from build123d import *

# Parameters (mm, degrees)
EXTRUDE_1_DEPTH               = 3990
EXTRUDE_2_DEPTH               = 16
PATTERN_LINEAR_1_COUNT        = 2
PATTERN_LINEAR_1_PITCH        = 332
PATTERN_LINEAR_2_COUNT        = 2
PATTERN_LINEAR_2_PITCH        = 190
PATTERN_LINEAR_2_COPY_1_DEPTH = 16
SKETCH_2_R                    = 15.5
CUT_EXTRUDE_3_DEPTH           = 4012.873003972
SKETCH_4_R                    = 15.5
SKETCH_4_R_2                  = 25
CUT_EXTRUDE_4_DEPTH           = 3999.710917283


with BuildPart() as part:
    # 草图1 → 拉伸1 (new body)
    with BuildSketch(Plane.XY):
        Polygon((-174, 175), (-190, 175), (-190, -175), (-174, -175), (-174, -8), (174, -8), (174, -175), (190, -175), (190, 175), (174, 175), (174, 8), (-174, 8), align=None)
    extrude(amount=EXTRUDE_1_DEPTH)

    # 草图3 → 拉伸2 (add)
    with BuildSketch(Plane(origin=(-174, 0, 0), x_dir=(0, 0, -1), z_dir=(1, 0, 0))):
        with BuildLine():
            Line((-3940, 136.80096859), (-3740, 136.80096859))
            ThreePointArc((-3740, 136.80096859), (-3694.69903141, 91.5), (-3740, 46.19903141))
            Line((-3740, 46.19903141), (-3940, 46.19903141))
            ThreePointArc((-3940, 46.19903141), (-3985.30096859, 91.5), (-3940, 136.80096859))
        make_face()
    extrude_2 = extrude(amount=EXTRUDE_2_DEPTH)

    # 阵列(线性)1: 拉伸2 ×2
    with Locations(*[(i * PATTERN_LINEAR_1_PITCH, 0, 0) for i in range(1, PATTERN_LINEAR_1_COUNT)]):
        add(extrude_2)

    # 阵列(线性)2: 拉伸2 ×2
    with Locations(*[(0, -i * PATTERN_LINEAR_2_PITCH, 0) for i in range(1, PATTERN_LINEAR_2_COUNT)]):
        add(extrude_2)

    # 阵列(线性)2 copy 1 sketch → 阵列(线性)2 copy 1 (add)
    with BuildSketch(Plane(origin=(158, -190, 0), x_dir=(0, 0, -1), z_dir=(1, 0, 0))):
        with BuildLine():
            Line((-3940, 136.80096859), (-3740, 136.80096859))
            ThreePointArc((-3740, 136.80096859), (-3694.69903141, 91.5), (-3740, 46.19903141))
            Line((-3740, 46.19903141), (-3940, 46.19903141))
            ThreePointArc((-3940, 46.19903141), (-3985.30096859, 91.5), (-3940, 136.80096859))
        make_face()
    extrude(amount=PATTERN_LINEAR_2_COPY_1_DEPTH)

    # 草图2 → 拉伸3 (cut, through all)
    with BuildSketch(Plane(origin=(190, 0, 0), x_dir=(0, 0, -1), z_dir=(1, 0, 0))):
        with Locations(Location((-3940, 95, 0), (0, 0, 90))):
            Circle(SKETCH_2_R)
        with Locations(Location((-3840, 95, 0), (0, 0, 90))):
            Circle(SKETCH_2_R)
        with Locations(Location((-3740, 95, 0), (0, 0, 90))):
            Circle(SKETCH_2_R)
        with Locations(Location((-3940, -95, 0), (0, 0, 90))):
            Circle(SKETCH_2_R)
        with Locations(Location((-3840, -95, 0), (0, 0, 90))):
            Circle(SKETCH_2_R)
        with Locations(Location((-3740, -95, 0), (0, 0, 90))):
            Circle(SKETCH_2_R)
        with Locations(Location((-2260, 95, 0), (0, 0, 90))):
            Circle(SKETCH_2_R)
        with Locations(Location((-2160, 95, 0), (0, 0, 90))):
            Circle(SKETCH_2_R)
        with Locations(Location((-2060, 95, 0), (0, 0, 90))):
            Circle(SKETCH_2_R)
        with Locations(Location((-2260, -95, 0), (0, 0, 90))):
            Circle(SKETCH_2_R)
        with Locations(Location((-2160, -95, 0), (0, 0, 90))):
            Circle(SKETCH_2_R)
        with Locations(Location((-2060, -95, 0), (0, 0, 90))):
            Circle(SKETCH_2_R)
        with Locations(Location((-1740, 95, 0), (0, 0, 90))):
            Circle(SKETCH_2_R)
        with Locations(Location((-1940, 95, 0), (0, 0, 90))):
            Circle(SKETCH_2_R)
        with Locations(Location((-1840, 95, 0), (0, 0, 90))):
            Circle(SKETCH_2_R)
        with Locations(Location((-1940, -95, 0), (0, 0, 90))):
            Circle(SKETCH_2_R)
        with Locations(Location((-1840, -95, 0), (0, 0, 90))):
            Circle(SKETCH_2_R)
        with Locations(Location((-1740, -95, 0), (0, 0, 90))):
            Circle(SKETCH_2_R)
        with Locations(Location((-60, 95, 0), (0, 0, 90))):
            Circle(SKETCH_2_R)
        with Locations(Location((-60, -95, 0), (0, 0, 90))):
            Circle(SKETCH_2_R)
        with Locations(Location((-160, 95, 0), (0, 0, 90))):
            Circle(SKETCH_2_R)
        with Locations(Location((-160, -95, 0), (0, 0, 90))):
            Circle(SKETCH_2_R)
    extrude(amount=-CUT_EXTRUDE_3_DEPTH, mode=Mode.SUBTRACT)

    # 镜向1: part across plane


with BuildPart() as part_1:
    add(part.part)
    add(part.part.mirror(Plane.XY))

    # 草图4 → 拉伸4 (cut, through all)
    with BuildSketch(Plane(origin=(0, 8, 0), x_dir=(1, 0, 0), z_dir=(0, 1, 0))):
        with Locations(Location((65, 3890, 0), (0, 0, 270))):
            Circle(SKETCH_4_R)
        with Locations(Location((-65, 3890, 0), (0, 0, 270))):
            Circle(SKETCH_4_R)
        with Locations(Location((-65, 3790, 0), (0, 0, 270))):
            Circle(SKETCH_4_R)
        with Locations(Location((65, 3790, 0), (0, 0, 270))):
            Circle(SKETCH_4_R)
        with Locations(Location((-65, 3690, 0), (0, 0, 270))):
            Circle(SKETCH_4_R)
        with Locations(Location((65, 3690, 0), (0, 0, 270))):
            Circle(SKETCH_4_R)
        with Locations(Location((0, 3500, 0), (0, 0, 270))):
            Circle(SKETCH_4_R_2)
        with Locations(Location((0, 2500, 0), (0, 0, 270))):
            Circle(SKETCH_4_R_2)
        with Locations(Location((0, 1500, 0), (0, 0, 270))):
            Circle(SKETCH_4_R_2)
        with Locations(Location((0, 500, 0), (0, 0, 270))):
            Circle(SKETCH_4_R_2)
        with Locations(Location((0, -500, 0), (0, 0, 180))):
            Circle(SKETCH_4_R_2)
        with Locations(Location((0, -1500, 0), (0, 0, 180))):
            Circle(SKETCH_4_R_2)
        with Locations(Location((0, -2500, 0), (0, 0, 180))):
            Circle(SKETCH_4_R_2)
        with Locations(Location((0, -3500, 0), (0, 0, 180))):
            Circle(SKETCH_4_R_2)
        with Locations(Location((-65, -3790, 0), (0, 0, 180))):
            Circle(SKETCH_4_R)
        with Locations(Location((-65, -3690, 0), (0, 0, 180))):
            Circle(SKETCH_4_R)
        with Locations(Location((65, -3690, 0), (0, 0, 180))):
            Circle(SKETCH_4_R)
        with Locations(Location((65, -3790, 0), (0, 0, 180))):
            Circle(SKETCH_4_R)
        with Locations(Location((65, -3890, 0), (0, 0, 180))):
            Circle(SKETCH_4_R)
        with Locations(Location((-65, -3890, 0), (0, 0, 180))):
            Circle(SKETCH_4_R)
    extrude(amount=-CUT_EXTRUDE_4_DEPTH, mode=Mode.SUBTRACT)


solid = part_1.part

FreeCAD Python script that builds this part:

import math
import FreeCAD as App
import Part
import Sketcher

V = App.Vector

doc = App.newDocument("Part")
body = doc.addObject("PartDesign::Body", "Body")

# Sketch on XY plane
sketch1 = body.newObject("Sketcher::SketchObject", "Sketch")
sketch1.AttachmentSupport = (doc.getObject("XY_Plane"), [""])
sketch1.MapMode = "FlatFace"
sketch1.addGeometry([
    Part.LineSegment(V(-174, 175, 0), V(-190, 175, 0)),  # 0
    Part.LineSegment(V(-190, 175, 0), V(-190, -175, 0)),  # 1
    Part.LineSegment(V(-190, -175, 0), V(-174, -175, 0)),  # 2
    Part.LineSegment(V(-174, -175, 0), V(-174, -8, 0)),  # 3
    Part.LineSegment(V(-174, -8, 0), V(174, -8, 0)),  # 4
    Part.LineSegment(V(174, -8, 0), V(174, -175, 0)),  # 5
    Part.LineSegment(V(174, -175, 0), V(190, -175, 0)),  # 6
    Part.LineSegment(V(190, -175, 0), V(190, 175, 0)),  # 7
    Part.LineSegment(V(190, 175, 0), V(174, 175, 0)),  # 8
    Part.LineSegment(V(174, 175, 0), V(174, 8, 0)),  # 9
    Part.LineSegment(V(174, 8, 0), V(-174, 8, 0)),  # 10
    Part.LineSegment(V(-174, 8, 0), V(-174, 175, 0)),  # 11
], False)
sketch1.addConstraint([
    Sketcher.Constraint("Coincident", 0, 2, 1, 1),
    Sketcher.Constraint("Coincident", 1, 2, 2, 1),
    Sketcher.Constraint("Coincident", 2, 2, 3, 1),
    Sketcher.Constraint("Coincident", 3, 2, 4, 1),
    Sketcher.Constraint("Coincident", 4, 2, 5, 1),
    Sketcher.Constraint("Coincident", 5, 2, 6, 1),
    Sketcher.Constraint("Coincident", 6, 2, 7, 1),
    Sketcher.Constraint("Coincident", 7, 2, 8, 1),
    Sketcher.Constraint("Coincident", 8, 2, 9, 1),
    Sketcher.Constraint("Coincident", 9, 2, 10, 1),
    Sketcher.Constraint("Coincident", 10, 2, 11, 1),
    Sketcher.Constraint("Coincident", 11, 2, 0, 1),
    Sketcher.Constraint("Horizontal", 0),
    Sketcher.Constraint("Vertical", 1),
    Sketcher.Constraint("Horizontal", 2),
    Sketcher.Constraint("Vertical", 3),
    Sketcher.Constraint("Horizontal", 4),
    Sketcher.Constraint("Vertical", 5),
    Sketcher.Constraint("Horizontal", 6),
    Sketcher.Constraint("Vertical", 7),
    Sketcher.Constraint("Horizontal", 8),
    Sketcher.Constraint("Vertical", 9),
    Sketcher.Constraint("Horizontal", 10),
    Sketcher.Constraint("Vertical", 11),
    Sketcher.Constraint("Symmetric", 0, 2, 6, 2, -1, 1),
    Sketcher.Constraint("Symmetric", 2, 2, 8, 2, -1, 1),
    Sketcher.Constraint("Symmetric", 4, 2, 10, 2, -1, 1),
    Sketcher.Constraint("Symmetric", 2, 2, 5, 2, -2),
    Sketcher.Constraint("DistanceX", 0, 2, 0, 1, 16.0),
    Sketcher.Constraint("DistanceX", 4, 1, 4, 2, 348.0),
    Sketcher.Constraint("DistanceY", 1, 2, 1, 1, 350.0),
    Sketcher.Constraint("DistanceY", 3, 1, 3, 2, 167.0),
])
pad1 = body.newObject("PartDesign::Pad", "Pad")
pad1.Profile = sketch1
pad1.Length = 3990

# Sketch on YZ plane
sketch2 = body.newObject("Sketcher::SketchObject", "Sketch001")
sketch2.AttachmentSupport = (doc.getObject("YZ_Plane"), [""])
sketch2.MapMode = "FlatFace"
sketch2.AttachmentOffset = App.Placement(V(0, 0, -174), App.Rotation())
sketch2.addGeometry([
    Part.LineSegment(V(137, 3740, 0), V(137, 3940, 0)),
    Part.ArcOfCircle(Part.Circle(V(92, 3940, 0), V(0, 0, 1), 45), math.radians(0), math.radians(180)),
    Part.LineSegment(V(46, 3940, 0), V(46, 3740, 0)),
    Part.ArcOfCircle(Part.Circle(V(92, 3740, 0), V(0, 0, 1), 45), math.radians(180), math.radians(360)),
], False)
sketch2.addConstraint([
    Sketcher.Constraint("Tangent", 0, 2, 1, 1),
    Sketcher.Constraint("Tangent", 1, 2, 2, 1),
    Sketcher.Constraint("Tangent", 2, 2, 3, 1),
    Sketcher.Constraint("Tangent", 3, 2, 0, 1),
    Sketcher.Constraint("Vertical", 0),
    Sketcher.Constraint("Vertical", 2),
    Sketcher.Constraint("DistanceY", 0, 1, 0, 2, 200.0),
    Sketcher.Constraint("DistanceY", -1, 1, 1, 3, 3940.0),
    Sketcher.Constraint("DistanceX", -1, 1, 1, 3, 91.5),
    Sketcher.Constraint("Radius", 1, 45.300969),
])
pad2 = body.newObject("PartDesign::Pad", "Pad001")
pad2.Profile = sketch2
pad2.Length = 16
doc.recompute()

linearpattern = body.newObject("PartDesign::LinearPattern", "LinearPattern")
linearpattern.Originals = [pad2]
linearpattern.Direction = (doc.getObject("X_Axis"), [""])
linearpattern.Mode = "offset"
linearpattern.Offset = 332
linearpattern.Occurrences = 2
body.Tip = linearpattern
doc.recompute()

linearpattern2 = body.newObject("PartDesign::LinearPattern", "LinearPattern001")
linearpattern2.Originals = [pad2]
linearpattern2.Direction = (doc.getObject("Y_Axis"), [""])
linearpattern2.Mode = "offset"
linearpattern2.Offset = 190
linearpattern2.Occurrences = 2
linearpattern2.Reversed = True
body.Tip = linearpattern2

# Sketch on YZ plane
sketch3 = body.newObject("Sketcher::SketchObject", "Sketch002")
sketch3.AttachmentSupport = (doc.getObject("YZ_Plane"), [""])
sketch3.MapMode = "FlatFace"
sketch3.AttachmentOffset = App.Placement(V(0, 0, 158), App.Rotation())
sketch3.addGeometry([
    Part.LineSegment(V(-53, 3740, 0), V(-53, 3940, 0)),
    Part.ArcOfCircle(Part.Circle(V(-98, 3940, 0), V(0, 0, 1), 45), math.radians(0), math.radians(180)),
    Part.LineSegment(V(-144, 3940, 0), V(-144, 3740, 0)),
    Part.ArcOfCircle(Part.Circle(V(-98, 3740, 0), V(0, 0, 1), 45), math.radians(180), math.radians(360)),
], False)
sketch3.addConstraint([
    Sketcher.Constraint("Tangent", 0, 2, 1, 1),
    Sketcher.Constraint("Tangent", 1, 2, 2, 1),
    Sketcher.Constraint("Tangent", 2, 2, 3, 1),
    Sketcher.Constraint("Tangent", 3, 2, 0, 1),
    Sketcher.Constraint("Vertical", 0),
    Sketcher.Constraint("Vertical", 2),
    Sketcher.Constraint("DistanceY", 0, 1, 0, 2, 200.0),
    Sketcher.Constraint("DistanceY", -1, 1, 1, 3, 3940.0),
    Sketcher.Constraint("DistanceX", 1, 3, -1, 1, 98.5),
    Sketcher.Constraint("Radius", 1, 45.300969),
])
pad3 = body.newObject("PartDesign::Pad", "Pad002")
pad3.Profile = sketch3
pad3.Length = 16

# Sketch on YZ plane
sketch4 = body.newObject("Sketcher::SketchObject", "Sketch003")
sketch4.AttachmentSupport = (doc.getObject("YZ_Plane"), [""])
sketch4.MapMode = "FlatFace"
sketch4.AttachmentOffset = App.Placement(V(0, 0, 190), App.Rotation())
sketch4.addGeometry([
    Part.Circle(V(95, 3940, 0), V(0, 0, 1), 16),  # 0
    Part.Circle(V(95, 3840, 0), V(0, 0, 1), 16),  # 1
    Part.Circle(V(95, 3740, 0), V(0, 0, 1), 16),  # 2
    Part.Circle(V(-95, 3940, 0), V(0, 0, 1), 16),  # 3
    Part.Circle(V(-95, 3840, 0), V(0, 0, 1), 16),  # 4
    Part.Circle(V(-95, 3740, 0), V(0, 0, 1), 16),  # 5
    Part.Circle(V(95, 2260, 0), V(0, 0, 1), 16),  # 6
    Part.Circle(V(95, 2160, 0), V(0, 0, 1), 16),  # 7
    Part.Circle(V(95, 2060, 0), V(0, 0, 1), 16),  # 8
    Part.Circle(V(-95, 2260, 0), V(0, 0, 1), 16),  # 9
    Part.Circle(V(-95, 2160, 0), V(0, 0, 1), 16),  # 10
    Part.Circle(V(-95, 2060, 0), V(0, 0, 1), 16),  # 11
    Part.Circle(V(95, 1740, 0), V(0, 0, 1), 16),  # 12
    Part.Circle(V(95, 1940, 0), V(0, 0, 1), 16),  # 13
    Part.Circle(V(95, 1840, 0), V(0, 0, 1), 16),  # 14
    Part.Circle(V(-95, 1940, 0), V(0, 0, 1), 16),  # 15
    Part.Circle(V(-95, 1840, 0), V(0, 0, 1), 16),  # 16
    Part.Circle(V(-95, 1740, 0), V(0, 0, 1), 16),  # 17
    Part.Circle(V(95, 60, 0), V(0, 0, 1), 16),  # 18
    Part.Circle(V(-95, 60, 0), V(0, 0, 1), 16),  # 19
    Part.Circle(V(95, 160, 0), V(0, 0, 1), 16),  # 20
    Part.Circle(V(-95, 160, 0), V(0, 0, 1), 16),  # 21
], False)
sketch4.addConstraint([
    Sketcher.Constraint("Equal", 0, 1),
    Sketcher.Constraint("Equal", 1, 2),
    Sketcher.Constraint("Equal", 2, 3),
    Sketcher.Constraint("Equal", 3, 4),
    Sketcher.Constraint("Equal", 4, 5),
    Sketcher.Constraint("Equal", 5, 6),
    Sketcher.Constraint("Equal", 6, 7),
    Sketcher.Constraint("Equal", 7, 8),
    Sketcher.Constraint("Equal", 8, 9),
    Sketcher.Constraint("Equal", 9, 10),
    Sketcher.Constraint("Equal", 10, 11),
    Sketcher.Constraint("Equal", 11, 12),
    Sketcher.Constraint("Equal", 12, 13),
    Sketcher.Constraint("Equal", 13, 14),
    Sketcher.Constraint("Equal", 14, 15),
    Sketcher.Constraint("Equal", 15, 16),
    Sketcher.Constraint("Equal", 16, 17),
    Sketcher.Constraint("Equal", 17, 18),
    Sketcher.Constraint("Equal", 18, 19),
    Sketcher.Constraint("Equal", 19, 20),
    Sketcher.Constraint("Equal", 20, 21),
    Sketcher.Constraint("Symmetric", 0, 3, 3, 3, -2),
    Sketcher.Constraint("Symmetric", 1, 3, 4, 3, -2),
    Sketcher.Constraint("Symmetric", 2, 3, 5, 3, -2),
    Sketcher.Constraint("Symmetric", 6, 3, 9, 3, -2),
    Sketcher.Constraint("Symmetric", 7, 3, 10, 3, -2),
    Sketcher.Constraint("Symmetric", 8, 3, 11, 3, -2),
    Sketcher.Constraint("Symmetric", 13, 3, 15, 3, -2),
    Sketcher.Constraint("Symmetric", 14, 3, 16, 3, -2),
    Sketcher.Constraint("Symmetric", 12, 3, 17, 3, -2),
    Sketcher.Constraint("Symmetric", 18, 3, 19, 3, -2),
    Sketcher.Constraint("Symmetric", 20, 3, 21, 3, -2),
    Sketcher.Constraint("Vertical", 0, 3, 1, 3),
    Sketcher.Constraint("Vertical", 1, 3, 2, 3),
    Sketcher.Constraint("Vertical", 2, 3, 6, 3),
    Sketcher.Constraint("Vertical", 6, 3, 7, 3),
    Sketcher.Constraint("Vertical", 7, 3, 8, 3),
    Sketcher.Constraint("Vertical", 8, 3, 12, 3),
    Sketcher.Constraint("Vertical", 12, 3, 13, 3),
    Sketcher.Constraint("Vertical", 13, 3, 14, 3),
    Sketcher.Constraint("Vertical", 14, 3, 18, 3),
    Sketcher.Constraint("Vertical", 18, 3, 20, 3),
    Sketcher.Constraint("Diameter", 0, 31.0),
    Sketcher.Constraint("DistanceX", -1, 1, 0, 3, 95.0),
    Sketcher.Constraint("DistanceY", -1, 1, 0, 3, 3940.0),
    Sketcher.Constraint("DistanceY", -1, 1, 1, 3, 3840.0),
    Sketcher.Constraint("DistanceY", -1, 1, 2, 3, 3740.0),
    Sketcher.Constraint("DistanceY", -1, 1, 6, 3, 2260.0),
    Sketcher.Constraint("DistanceY", -1, 1, 7, 3, 2160.0),
    Sketcher.Constraint("DistanceY", -1, 1, 8, 3, 2060.0),
    Sketcher.Constraint("DistanceY", -1, 1, 12, 3, 1740.0),
    Sketcher.Constraint("DistanceY", -1, 1, 13, 3, 1940.0),
    Sketcher.Constraint("DistanceY", -1, 1, 14, 3, 1840.0),
    Sketcher.Constraint("DistanceY", -1, 1, 18, 3, 60.0),
    Sketcher.Constraint("DistanceY", -1, 1, 20, 3, 160.0),
])
pocket1 = body.newObject("PartDesign::Pocket", "Pocket")
pocket1.Profile = sketch4
pocket1.Type = "ThroughAll"
body2 = doc.addObject("PartDesign::Body", "Body001")
doc.recompute()

body2.BaseFeature = body
doc.recompute()

mirroring = doc.addObject("Part::Mirroring", "Mirroring")
mirroring.Source = body
mirroring.Base = V(0, 0, 0)
mirroring.Normal = V(0, 0, 1)
body3 = doc.addObject("PartDesign::Body", "Body002")
body3.BaseFeature = mirroring
boolean = body2.newObject("PartDesign::Boolean", "Boolean")
boolean.Type = "Fuse"
boolean.addObjects([body3])
doc.recompute()

# Sketch on XZ plane
sketch5 = body2.newObject("Sketcher::SketchObject", "Sketch004")
sketch5.AttachmentSupport = (doc.getObject("XZ_Plane001"), [""])
sketch5.MapMode = "FlatFace"
sketch5.AttachmentOffset = App.Placement(V(0, 0, -8), App.Rotation())
sketch5.addGeometry([
    Part.Circle(V(65, -3890, 0), V(0, 0, 1), 16),  # 0
    Part.Circle(V(-65, -3890, 0), V(0, 0, 1), 16),  # 1
    Part.Circle(V(-65, -3790, 0), V(0, 0, 1), 16),  # 2
    Part.Circle(V(65, -3790, 0), V(0, 0, 1), 16),  # 3
    Part.Circle(V(-65, -3690, 0), V(0, 0, 1), 16),  # 4
    Part.Circle(V(65, -3690, 0), V(0, 0, 1), 16),  # 5
    Part.Circle(V(0, -3500, 0), V(0, 0, 1), 25),  # 6
    Part.Circle(V(0, -2500, 0), V(0, 0, 1), 25),  # 7
    Part.Circle(V(0, -1500, 0), V(0, 0, 1), 25),  # 8
    Part.Circle(V(0, -500, 0), V(0, 0, 1), 25),  # 9
    Part.Circle(V(0, 500, 0), V(0, 0, 1), 25),  # 10
    Part.Circle(V(0, 1500, 0), V(0, 0, 1), 25),  # 11
    Part.Circle(V(0, 2500, 0), V(0, 0, 1), 25),  # 12
    Part.Circle(V(0, 3500, 0), V(0, 0, 1), 25),  # 13
    Part.Circle(V(-65, 3790, 0), V(0, 0, 1), 16),  # 14
    Part.Circle(V(-65, 3690, 0), V(0, 0, 1), 16),  # 15
    Part.Circle(V(65, 3690, 0), V(0, 0, 1), 16),  # 16
    Part.Circle(V(65, 3790, 0), V(0, 0, 1), 16),  # 17
    Part.Circle(V(65, 3890, 0), V(0, 0, 1), 16),  # 18
    Part.Circle(V(-65, 3890, 0), V(0, 0, 1), 16),  # 19
], False)
sketch5.addConstraint([
    Sketcher.Constraint("Equal", 0, 1),
    Sketcher.Constraint("Equal", 1, 2),
    Sketcher.Constraint("Equal", 2, 3),
    Sketcher.Constraint("Equal", 3, 4),
    Sketcher.Constraint("Equal", 4, 5),
    Sketcher.Constraint("Equal", 6, 7),
    Sketcher.Constraint("Equal", 7, 8),
    Sketcher.Constraint("Equal", 8, 9),
    Sketcher.Constraint("Equal", 9, 10),
    Sketcher.Constraint("Equal", 10, 11),
    Sketcher.Constraint("Equal", 11, 12),
    Sketcher.Constraint("Equal", 12, 13),
    Sketcher.Constraint("Equal", 5, 14),
    Sketcher.Constraint("Equal", 14, 15),
    Sketcher.Constraint("Equal", 15, 16),
    Sketcher.Constraint("Equal", 16, 17),
    Sketcher.Constraint("Equal", 17, 18),
    Sketcher.Constraint("Equal", 18, 19),
    Sketcher.Constraint("Symmetric", 9, 3, 10, 3, -1, 1),
    Sketcher.Constraint("Symmetric", 8, 3, 11, 3, -1, 1),
    Sketcher.Constraint("Symmetric", 7, 3, 12, 3, -1, 1),
    Sketcher.Constraint("Symmetric", 6, 3, 13, 3, -1, 1),
    Sketcher.Constraint("Symmetric", 3, 3, 14, 3, -1, 1),
    Sketcher.Constraint("Symmetric", 5, 3, 15, 3, -1, 1),
    Sketcher.Constraint("Symmetric", 4, 3, 16, 3, -1, 1),
    Sketcher.Constraint("Symmetric", 2, 3, 17, 3, -1, 1),
    Sketcher.Constraint("Symmetric", 1, 3, 18, 3, -1, 1),
    Sketcher.Constraint("Symmetric", 0, 3, 19, 3, -1, 1),
    Sketcher.Constraint("Symmetric", 0, 3, 1, 3, -2),
    Sketcher.Constraint("Symmetric", 2, 3, 3, 3, -2),
    Sketcher.Constraint("Symmetric", 4, 3, 5, 3, -2),
    Sketcher.Constraint("PointOnObject", 6, 3, -2),
    Sketcher.Constraint("PointOnObject", 7, 3, -2),
    Sketcher.Constraint("PointOnObject", 8, 3, -2),
    Sketcher.Constraint("PointOnObject", 9, 3, -2),
    Sketcher.Constraint("Vertical", 1, 3, 2, 3),
    Sketcher.Constraint("Vertical", 2, 3, 4, 3),
    Sketcher.Constraint("Diameter", 0, 31.0),
    Sketcher.Constraint("Diameter", 6, 50.0),
    Sketcher.Constraint("DistanceX", -1, 1, 0, 3, 65.0),
    Sketcher.Constraint("DistanceY", 0, 3, -1, 1, 3890.0),
    Sketcher.Constraint("DistanceY", 2, 3, -1, 1, 3790.0),
    Sketcher.Constraint("DistanceY", 4, 3, -1, 1, 3690.0),
    Sketcher.Constraint("DistanceY", 6, 3, -1, 1, 3500.0),
    Sketcher.Constraint("DistanceY", 7, 3, -1, 1, 2500.0),
    Sketcher.Constraint("DistanceY", 8, 3, -1, 1, 1500.0),
    Sketcher.Constraint("DistanceY", 9, 3, -1, 1, 500.0),
])
pocket2 = body2.newObject("PartDesign::Pocket", "Pocket001")
pocket2.Profile = sketch5
pocket2.Type = "ThroughAll"
pocket2.Reversed = True
mirroring.Visibility = False

doc.recompute()
